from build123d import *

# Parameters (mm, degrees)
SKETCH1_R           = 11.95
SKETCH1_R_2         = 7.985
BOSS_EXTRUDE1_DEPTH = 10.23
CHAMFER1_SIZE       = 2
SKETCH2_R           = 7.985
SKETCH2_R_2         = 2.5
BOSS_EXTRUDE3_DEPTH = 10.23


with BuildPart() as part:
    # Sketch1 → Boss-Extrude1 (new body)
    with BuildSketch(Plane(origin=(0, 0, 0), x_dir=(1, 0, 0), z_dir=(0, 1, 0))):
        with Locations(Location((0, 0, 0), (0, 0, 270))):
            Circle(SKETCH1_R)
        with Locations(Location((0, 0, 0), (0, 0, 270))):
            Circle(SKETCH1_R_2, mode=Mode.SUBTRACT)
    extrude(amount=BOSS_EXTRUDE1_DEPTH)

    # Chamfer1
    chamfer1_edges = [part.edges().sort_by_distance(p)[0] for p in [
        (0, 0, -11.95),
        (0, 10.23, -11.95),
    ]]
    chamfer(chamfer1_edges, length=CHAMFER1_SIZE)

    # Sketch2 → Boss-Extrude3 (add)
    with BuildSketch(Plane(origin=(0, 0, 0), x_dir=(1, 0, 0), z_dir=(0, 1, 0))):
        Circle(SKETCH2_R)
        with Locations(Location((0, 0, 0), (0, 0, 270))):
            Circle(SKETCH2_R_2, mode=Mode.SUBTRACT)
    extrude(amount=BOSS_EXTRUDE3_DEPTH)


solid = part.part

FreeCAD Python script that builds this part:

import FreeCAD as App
import Part
import Sketcher
from FreeCAD import Vector
Q = App.Units.Quantity


def edges_at(feature, points):
    """Names of the edges that pass closest to the given points."""
    edges = feature.Shape.Edges
    near = lambda p: min(range(len(edges)), key=lambda i: edges[i].distToShape(Part.Vertex(*p))[0])
    return sorted({f"Edge{near(p) + 1}" for p in points})

doc = App.newDocument("Part")
body = doc.addObject("PartDesign::Body", "Body")

sketch1 = body.newObject("Sketcher::SketchObject", "Sketch")
sketch1.AttachmentSupport = (doc.getObject("XZ_Plane"), [""])
sketch1.MapMode = "FlatFace"
sketch1.addGeometry(Part.Circle(Vector(0, 0, 0), Vector(0, 0, 1), 12), False)
sketch1.addGeometry(Part.Circle(Vector(0, 0, 0), Vector(0, 0, 1), 8), False)
sketch1.addConstraint(Sketcher.Constraint("Coincident", 0, 3, -1, 1))
sketch1.addConstraint(Sketcher.Constraint("Coincident", 1, 3, -1, 1))
sketch1.addConstraint(Sketcher.Constraint("Diameter", 0, Q("23.9 mm")))
sketch1.addConstraint(Sketcher.Constraint("Diameter", 1, Q("15.97 mm")))
pad1 = body.newObject("PartDesign::Pad", "Pad")
pad1.Profile = sketch1
pad1.Length = 10.23
pad1.Reversed = True
doc.recompute()

chamfer = body.newObject("PartDesign::Chamfer", "Chamfer")
chamfer.Base = (pad1, edges_at(pad1, [(0, 0, -11.95), (0, 10.23, -11.95)]))
chamfer.Size = 2

sketch2 = body.newObject("Sketcher::SketchObject", "Sketch001")
sketch2.AttachmentSupport = (doc.getObject("XZ_Plane"), [""])
sketch2.MapMode = "FlatFace"
sketch2.addGeometry(Part.Circle(Vector(0, 0, 0), Vector(0, 0, 1), 8), False)
sketch2.addGeometry(Part.Circle(Vector(0, 0, 0), Vector(0, 0, 1), 2.5), False)
sketch2.addConstraint(Sketcher.Constraint("Coincident", 0, 3, -1, 1))
sketch2.addConstraint(Sketcher.Constraint("Coincident", 1, 3, -1, 1))
sketch2.addConstraint(Sketcher.Constraint("Diameter", 1, Q("5 mm")))
sketch2.addConstraint(Sketcher.Constraint("Diameter", 0, Q("15.97 mm")))
pad2 = body.newObject("PartDesign::Pad", "Pad001")
pad2.Profile = sketch2
pad2.Length = 10.23
pad2.Reversed = True

doc.recompute()
